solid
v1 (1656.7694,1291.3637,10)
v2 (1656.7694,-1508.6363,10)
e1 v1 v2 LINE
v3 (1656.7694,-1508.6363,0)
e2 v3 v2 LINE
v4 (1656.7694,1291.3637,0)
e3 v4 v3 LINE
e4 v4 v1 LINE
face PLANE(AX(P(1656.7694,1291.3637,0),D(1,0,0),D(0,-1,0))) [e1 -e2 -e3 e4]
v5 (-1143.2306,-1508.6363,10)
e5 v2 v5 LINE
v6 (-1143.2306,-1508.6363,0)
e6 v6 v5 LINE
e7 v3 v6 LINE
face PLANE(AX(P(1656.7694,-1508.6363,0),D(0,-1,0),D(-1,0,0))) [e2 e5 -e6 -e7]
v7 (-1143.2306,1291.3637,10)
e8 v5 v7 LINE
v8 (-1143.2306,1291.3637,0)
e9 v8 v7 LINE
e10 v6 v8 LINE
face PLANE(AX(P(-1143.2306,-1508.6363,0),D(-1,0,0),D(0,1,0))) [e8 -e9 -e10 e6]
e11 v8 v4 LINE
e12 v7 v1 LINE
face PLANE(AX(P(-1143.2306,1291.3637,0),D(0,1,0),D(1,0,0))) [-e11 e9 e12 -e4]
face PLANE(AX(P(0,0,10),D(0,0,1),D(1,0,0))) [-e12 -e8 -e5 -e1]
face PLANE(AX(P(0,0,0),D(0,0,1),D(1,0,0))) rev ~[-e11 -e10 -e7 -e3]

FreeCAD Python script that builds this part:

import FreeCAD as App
import Part
import Sketcher
Q = App.Units.Quantity


def add_polygon(sketch, points):
    """Adds a closed chain of lines whose ends are joined by coincident constraints."""
    first, n = sketch.GeometryCount, len(points)
    for a, b in zip(points, points[1:] + points[:1]):
        sketch.addGeometry(Part.LineSegment(App.Vector(*a, 0), App.Vector(*b, 0)), False)
    for i in range(n):
        sketch.addConstraint(Sketcher.Constraint("Coincident", first + i, 2, first + (i + 1) % n, 1))

doc = App.newDocument("Part")
body = doc.addObject("PartDesign::Body", "Body")

sketch1 = body.newObject("Sketcher::SketchObject", "Sketch")
sketch1.AttachmentSupport = (doc.getObject("XY_Plane"), [""])
sketch1.MapMode = "FlatFace"
add_polygon(sketch1, [(1656.7694, 1291.3637), (-1143.2306, 1291.3637), (-1143.2306, -1508.6363), (1656.7694, -1508.6363)])
sketch1.addConstraint([
    Sketcher.Constraint("Horizontal", 0),
    Sketcher.Constraint("Vertical", 1),
    Sketcher.Constraint("Horizontal", 2),
    Sketcher.Constraint("Vertical", 3),
    Sketcher.Constraint("Equal", 2, 1),
    Sketcher.Constraint("DistanceX", 0, 2, 0, 1, Q("2800 mm")),
    Sketcher.Constraint("DistanceX", 0, 2, -1, 1, Q("1143.2306 mm")),
    Sketcher.Constraint("DistanceY", -1, 1, 0, 2, Q("1291.3637 mm")),
])
pad1 = body.newObject("PartDesign::Pad", "Pad")
pad1.Profile = sketch1
pad1.Length = 10

doc.recompute()
